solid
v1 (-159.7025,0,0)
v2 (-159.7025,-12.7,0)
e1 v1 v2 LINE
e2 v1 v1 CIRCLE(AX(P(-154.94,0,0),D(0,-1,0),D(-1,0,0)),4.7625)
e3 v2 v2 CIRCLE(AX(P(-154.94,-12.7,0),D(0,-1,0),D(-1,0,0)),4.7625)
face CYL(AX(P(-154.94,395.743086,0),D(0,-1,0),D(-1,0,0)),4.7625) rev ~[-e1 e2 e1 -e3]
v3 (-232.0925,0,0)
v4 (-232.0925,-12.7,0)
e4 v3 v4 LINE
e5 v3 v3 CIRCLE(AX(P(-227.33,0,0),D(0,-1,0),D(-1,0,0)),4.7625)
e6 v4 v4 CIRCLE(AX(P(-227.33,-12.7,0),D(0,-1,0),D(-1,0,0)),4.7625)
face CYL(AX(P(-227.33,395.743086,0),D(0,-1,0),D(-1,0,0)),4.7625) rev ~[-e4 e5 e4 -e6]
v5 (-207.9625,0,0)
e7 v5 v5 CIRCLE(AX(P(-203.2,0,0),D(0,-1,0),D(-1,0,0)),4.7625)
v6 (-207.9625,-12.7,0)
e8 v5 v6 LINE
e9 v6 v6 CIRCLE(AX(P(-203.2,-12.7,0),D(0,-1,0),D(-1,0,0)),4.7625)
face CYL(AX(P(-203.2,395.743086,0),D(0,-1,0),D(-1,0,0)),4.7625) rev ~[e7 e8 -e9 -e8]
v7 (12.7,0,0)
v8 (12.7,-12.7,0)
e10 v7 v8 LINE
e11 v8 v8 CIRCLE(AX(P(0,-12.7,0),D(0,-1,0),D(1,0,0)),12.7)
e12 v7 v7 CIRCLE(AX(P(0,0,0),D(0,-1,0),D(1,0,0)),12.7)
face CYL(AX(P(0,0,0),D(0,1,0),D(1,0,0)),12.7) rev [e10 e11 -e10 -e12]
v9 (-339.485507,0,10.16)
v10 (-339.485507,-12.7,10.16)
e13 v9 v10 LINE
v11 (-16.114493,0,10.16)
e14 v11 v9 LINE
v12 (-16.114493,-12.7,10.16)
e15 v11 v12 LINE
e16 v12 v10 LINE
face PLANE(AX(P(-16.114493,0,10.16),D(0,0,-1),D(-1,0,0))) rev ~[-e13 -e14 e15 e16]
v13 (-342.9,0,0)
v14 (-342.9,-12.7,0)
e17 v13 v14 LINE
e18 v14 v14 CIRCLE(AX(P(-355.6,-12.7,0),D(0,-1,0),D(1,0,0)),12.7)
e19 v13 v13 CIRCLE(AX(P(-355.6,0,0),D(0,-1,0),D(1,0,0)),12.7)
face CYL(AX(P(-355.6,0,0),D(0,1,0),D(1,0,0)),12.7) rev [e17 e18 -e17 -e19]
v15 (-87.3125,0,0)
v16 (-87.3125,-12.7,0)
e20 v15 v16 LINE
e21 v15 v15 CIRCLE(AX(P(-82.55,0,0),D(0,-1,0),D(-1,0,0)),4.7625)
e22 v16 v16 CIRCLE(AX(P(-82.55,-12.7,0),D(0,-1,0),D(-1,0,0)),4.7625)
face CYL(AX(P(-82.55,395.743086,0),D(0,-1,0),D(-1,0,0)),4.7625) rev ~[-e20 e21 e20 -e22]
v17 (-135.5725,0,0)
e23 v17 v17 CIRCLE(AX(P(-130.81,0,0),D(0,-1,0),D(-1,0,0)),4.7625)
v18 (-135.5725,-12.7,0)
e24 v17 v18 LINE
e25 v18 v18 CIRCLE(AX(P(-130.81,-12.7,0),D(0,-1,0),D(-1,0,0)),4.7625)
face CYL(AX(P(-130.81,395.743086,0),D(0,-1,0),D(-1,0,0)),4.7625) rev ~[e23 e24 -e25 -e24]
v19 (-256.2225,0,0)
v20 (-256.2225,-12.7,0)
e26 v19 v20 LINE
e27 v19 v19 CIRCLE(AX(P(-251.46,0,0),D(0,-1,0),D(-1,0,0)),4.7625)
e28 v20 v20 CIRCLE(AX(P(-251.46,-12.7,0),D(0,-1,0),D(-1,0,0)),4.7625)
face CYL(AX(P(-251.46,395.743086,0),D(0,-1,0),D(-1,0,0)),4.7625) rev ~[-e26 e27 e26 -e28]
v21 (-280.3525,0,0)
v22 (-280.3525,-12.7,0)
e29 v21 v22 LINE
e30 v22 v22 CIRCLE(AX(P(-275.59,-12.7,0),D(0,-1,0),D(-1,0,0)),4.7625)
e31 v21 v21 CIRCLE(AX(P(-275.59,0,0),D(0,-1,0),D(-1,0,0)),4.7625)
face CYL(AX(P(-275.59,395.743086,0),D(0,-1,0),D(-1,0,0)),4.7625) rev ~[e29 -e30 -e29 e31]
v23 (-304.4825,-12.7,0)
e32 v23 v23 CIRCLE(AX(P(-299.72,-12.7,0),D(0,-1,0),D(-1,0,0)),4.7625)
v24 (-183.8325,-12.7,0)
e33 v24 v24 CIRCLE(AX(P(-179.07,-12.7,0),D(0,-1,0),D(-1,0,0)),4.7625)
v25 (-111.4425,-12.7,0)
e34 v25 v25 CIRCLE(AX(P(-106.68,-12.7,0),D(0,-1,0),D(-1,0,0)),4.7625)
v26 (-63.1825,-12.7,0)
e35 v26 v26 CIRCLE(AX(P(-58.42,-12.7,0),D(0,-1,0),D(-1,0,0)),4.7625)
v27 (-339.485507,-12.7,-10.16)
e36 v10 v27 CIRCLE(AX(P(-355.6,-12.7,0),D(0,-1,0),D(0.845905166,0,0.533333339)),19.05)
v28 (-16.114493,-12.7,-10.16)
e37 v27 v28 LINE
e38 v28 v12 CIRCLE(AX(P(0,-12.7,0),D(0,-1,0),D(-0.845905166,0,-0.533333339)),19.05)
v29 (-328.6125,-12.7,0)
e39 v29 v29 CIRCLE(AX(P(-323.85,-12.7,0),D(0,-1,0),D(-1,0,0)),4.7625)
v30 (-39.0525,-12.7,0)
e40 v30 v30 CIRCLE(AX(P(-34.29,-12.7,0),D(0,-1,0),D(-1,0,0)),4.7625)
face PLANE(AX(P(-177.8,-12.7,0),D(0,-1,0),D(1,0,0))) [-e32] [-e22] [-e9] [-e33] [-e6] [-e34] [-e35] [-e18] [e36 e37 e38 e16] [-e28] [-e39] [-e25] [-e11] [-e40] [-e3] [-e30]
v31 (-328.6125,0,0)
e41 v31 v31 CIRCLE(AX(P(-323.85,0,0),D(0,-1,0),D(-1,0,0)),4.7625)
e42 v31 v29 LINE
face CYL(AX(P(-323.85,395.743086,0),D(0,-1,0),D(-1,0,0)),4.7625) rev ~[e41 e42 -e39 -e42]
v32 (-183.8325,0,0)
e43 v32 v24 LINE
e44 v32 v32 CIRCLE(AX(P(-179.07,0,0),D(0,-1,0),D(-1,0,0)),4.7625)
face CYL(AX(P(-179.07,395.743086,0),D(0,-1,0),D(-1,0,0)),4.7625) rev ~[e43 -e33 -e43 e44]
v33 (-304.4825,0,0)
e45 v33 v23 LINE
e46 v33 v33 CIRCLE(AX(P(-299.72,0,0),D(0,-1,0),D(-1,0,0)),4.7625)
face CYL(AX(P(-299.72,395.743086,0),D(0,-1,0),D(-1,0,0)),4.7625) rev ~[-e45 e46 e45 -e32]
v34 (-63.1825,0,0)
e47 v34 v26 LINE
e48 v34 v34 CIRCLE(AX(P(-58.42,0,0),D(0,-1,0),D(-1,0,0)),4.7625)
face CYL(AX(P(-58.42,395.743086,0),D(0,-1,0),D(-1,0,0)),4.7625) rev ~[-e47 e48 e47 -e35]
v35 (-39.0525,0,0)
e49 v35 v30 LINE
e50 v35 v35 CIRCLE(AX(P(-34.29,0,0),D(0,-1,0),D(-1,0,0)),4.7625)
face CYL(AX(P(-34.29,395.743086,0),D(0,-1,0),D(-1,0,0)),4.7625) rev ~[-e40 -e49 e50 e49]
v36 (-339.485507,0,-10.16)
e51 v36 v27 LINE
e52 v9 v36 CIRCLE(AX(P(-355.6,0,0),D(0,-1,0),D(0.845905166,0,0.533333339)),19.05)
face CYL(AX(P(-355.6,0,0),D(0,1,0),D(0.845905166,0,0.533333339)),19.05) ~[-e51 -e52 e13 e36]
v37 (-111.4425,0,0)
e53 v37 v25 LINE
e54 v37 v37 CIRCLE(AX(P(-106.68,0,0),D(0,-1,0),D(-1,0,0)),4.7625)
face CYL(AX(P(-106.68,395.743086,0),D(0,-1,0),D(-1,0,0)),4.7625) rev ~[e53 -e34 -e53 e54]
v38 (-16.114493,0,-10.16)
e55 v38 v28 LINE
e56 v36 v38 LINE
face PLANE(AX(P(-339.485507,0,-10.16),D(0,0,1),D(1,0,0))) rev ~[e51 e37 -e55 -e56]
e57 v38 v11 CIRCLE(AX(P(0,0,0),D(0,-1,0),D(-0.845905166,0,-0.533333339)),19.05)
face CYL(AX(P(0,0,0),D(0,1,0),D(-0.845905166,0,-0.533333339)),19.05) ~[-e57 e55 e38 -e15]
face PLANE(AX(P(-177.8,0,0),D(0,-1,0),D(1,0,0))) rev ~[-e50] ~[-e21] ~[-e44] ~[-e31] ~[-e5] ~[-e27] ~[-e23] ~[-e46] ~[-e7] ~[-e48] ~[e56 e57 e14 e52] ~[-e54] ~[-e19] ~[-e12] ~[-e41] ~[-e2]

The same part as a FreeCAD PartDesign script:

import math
import FreeCAD as App
import Part
import Sketcher
from FreeCAD import Vector
Q = App.Units.Quantity

doc = App.newDocument("Part")
body = doc.addObject("PartDesign::Body", "Body")

sketch1 = doc.addObject("Sketcher::SketchObject", "Sketch")
body.addObject(sketch1)
sketch1.AttachmentSupport = (doc.XZ_Plane, [""])
sketch1.MapMode = "FlatFace"
sketch1.addGeometry(Part.LineSegment(Vector(-339.485507, -10.16, 0), Vector(-16.114493, -10.16, 0)), False)
sketch1.addGeometry(Part.ArcOfCircle(Part.Circle(Vector(0, 0, 0), Vector(0, 0, 1), 19.05), math.radians(-147.769047), math.radians(147.769047)), False)
sketch1.addGeometry(Part.LineSegment(Vector(-16.114493, 10.16, 0), Vector(-339.485507, 10.16, 0)), False)
sketch1.addGeometry(Part.ArcOfCircle(Part.Circle(Vector(-355.6, 0, 0), Vector(0, 0, 1), 19.05), math.radians(32.230953), math.radians(327.769047)), False)
sketch1.addGeometry(Part.Circle(Vector(-355.6, 0, 0), Vector(0, 0, 1), 12.7), False)
sketch1.addGeometry(Part.Circle(Vector(0, 0, 0), Vector(0, 0, 1), 12.7), False)
sketch1.addConstraint(Sketcher.Constraint("Coincident", 0, 2, 1, 1))
sketch1.addConstraint(Sketcher.Constraint("Coincident", 1, 2, 2, 1))
sketch1.addConstraint(Sketcher.Constraint("Coincident", 2, 2, 3, 1))
sketch1.addConstraint(Sketcher.Constraint("Coincident", 3, 2, 0, 1))
sketch1.addConstraint(Sketcher.Constraint("Horizontal", 0))
sketch1.addConstraint(Sketcher.Constraint("Horizontal", 2))
sketch1.addConstraint(Sketcher.Constraint("Coincident", 1, 3, -1, 1))
sketch1.addConstraint(Sketcher.Constraint("Coincident", 5, 3, -1, 1))
sketch1.addConstraint(Sketcher.Constraint("Coincident", 4, 3, 3, 3))
sketch1.addConstraint(Sketcher.Constraint("Equal", 1, 3))
sketch1.addConstraint(Sketcher.Constraint("Equal", 4, 5))
sketch1.addConstraint(Sketcher.Constraint("Symmetric", 2, 2, 3, 2, -1))
sketch1.addConstraint(Sketcher.Constraint("Diameter", 4, Q("1 in")))
sketch1.addConstraint(Sketcher.Constraint("Radius", 1, Q("0.75 in")))
sketch1.addConstraint(Sketcher.Constraint("DistanceX", 3, 3, -1, 1, Q("14 in")))
sketch1.addConstraint(Sketcher.Constraint("DistanceY", 0, 2, -1, 1, Q("0.4 in")))
pad1 = doc.addObject("PartDesign::Pad", "Pad")
body.addObject(pad1)
pad1.Profile = sketch1
pad1.Length = Q("0.5 in")

sketch2 = doc.addObject("Sketcher::SketchObject", "Sketch001")
body.addObject(sketch2)
sketch2.AttachmentSupport = (doc.XZ_Plane, [""])
sketch2.MapMode = "FlatFace"
sketch2.addGeometry(Part.Circle(Vector(-323.85, 0, 0), Vector(0, 0, 1), 4.7625), False)
sketch2.addGeometry(Part.Circle(Vector(-299.72, 0, 0), Vector(0, 0, 1), 4.7625), False)
sketch2.addGeometry(Part.Circle(Vector(-275.59, 0, 0), Vector(0, 0, 1), 4.7625), False)
sketch2.addGeometry(Part.Circle(Vector(-251.46, 0, 0), Vector(0, 0, 1), 4.7625), False)
sketch2.addGeometry(Part.Circle(Vector(-227.33, 0, 0), Vector(0, 0, 1), 4.7625), False)
sketch2.addGeometry(Part.Circle(Vector(-203.2, 0, 0), Vector(0, 0, 1), 4.7625), False)
sketch2.addGeometry(Part.Circle(Vector(-179.07, 0, 0), Vector(0, 0, 1), 4.7625), False)
sketch2.addGeometry(Part.Circle(Vector(-154.94, 0, 0), Vector(0, 0, 1), 4.7625), False)
sketch2.addGeometry(Part.Circle(Vector(-130.81, 0, 0), Vector(0, 0, 1), 4.7625), False)
sketch2.addGeometry(Part.Circle(Vector(-106.68, 0, 0), Vector(0, 0, 1), 4.7625), False)
sketch2.addGeometry(Part.Circle(Vector(-82.55, 0, 0), Vector(0, 0, 1), 4.7625), False)
sketch2.addGeometry(Part.Circle(Vector(-58.42, 0, 0), Vector(0, 0, 1), 4.7625), False)
sketch2.addGeometry(Part.Circle(Vector(-34.29, 0, 0), Vector(0, 0, 1), 4.7625), False)
sketch2.addConstraint(Sketcher.Constraint("Equal", 0, 1))
sketch2.addConstraint(Sketcher.Constraint("Equal", 1, 2))
sketch2.addConstraint(Sketcher.Constraint("Equal", 2, 3))
sketch2.addConstraint(Sketcher.Constraint("Equal", 3, 4))
sketch2.addConstraint(Sketcher.Constraint("Equal", 4, 5))
sketch2.addConstraint(Sketcher.Constraint("Equal", 5, 6))
sketch2.addConstraint(Sketcher.Constraint("Equal", 6, 7))
sketch2.addConstraint(Sketcher.Constraint("Equal", 7, 8))
sketch2.addConstraint(Sketcher.Constraint("Equal", 8, 9))
sketch2.addConstraint(Sketcher.Constraint("Equal", 9, 10))
sketch2.addConstraint(Sketcher.Constraint("Equal", 10, 11))
sketch2.addConstraint(Sketcher.Constraint("Equal", 11, 12))
sketch2.addConstraint(Sketcher.Constraint("PointOnObject", 0, 3, -1))
sketch2.addConstraint(Sketcher.Constraint("PointOnObject", 1, 3, -1))
sketch2.addConstraint(Sketcher.Constraint("PointOnObject", 2, 3, -1))
sketch2.addConstraint(Sketcher.Constraint("PointOnObject", 3, 3, -1))
sketch2.addConstraint(Sketcher.Constraint("PointOnObject", 4, 3, -1))
sketch2.addConstraint(Sketcher.Constraint("PointOnObject", 5, 3, -1))
sketch2.addConstraint(Sketcher.Constraint("PointOnObject", 6, 3, -1))
sketch2.addConstraint(Sketcher.Constraint("PointOnObject", 7, 3, -1))
sketch2.addConstraint(Sketcher.Constraint("PointOnObject", 8, 3, -1))
sketch2.addConstraint(Sketcher.Constraint("PointOnObject", 9, 3, -1))
sketch2.addConstraint(Sketcher.Constraint("PointOnObject", 10, 3, -1))
sketch2.addConstraint(Sketcher.Constraint("PointOnObject", 11, 3, -1))
sketch2.addConstraint(Sketcher.Constraint("PointOnObject", 12, 3, -1))
sketch2.addConstraint(Sketcher.Constraint("Diameter", 0, Q("0.375 in")))
sketch2.addConstraint(Sketcher.Constraint("DistanceX", 5, 3, -1, 1, Q("8 in")))
sketch2.addConstraint(Sketcher.Constraint("DistanceX", 1, 3, -1, 1, Q("11.8 in")))
sketch2.addConstraint(Sketcher.Constraint("DistanceX", 3, 3, -1, 1, Q("9.9 in")))
sketch2.addConstraint(Sketcher.Constraint("DistanceX", 7, 3, -1, 1, Q("6.1 in")))
sketch2.addConstraint(Sketcher.Constraint("DistanceX", 9, 3, -1, 1, Q("4.2 in")))
sketch2.addConstraint(Sketcher.Constraint("DistanceX", 11, 3, -1, 1, Q("2.3 in")))
sketch2.addConstraint(Sketcher.Constraint("DistanceX", 0, 3, 2, 3, Q("1.9 in")))
sketch2.addConstraint(Sketcher.Constraint("DistanceX", 2, 3, 4, 3, Q("1.9 in")))
sketch2.addConstraint(Sketcher.Constraint("DistanceX", 4, 3, 6, 3, Q("1.9 in")))
sketch2.addConstraint(Sketcher.Constraint("DistanceX", 6, 3, 8, 3, Q("1.9 in")))
sketch2.addConstraint(Sketcher.Constraint("DistanceX", 8, 3, 10, 3, Q("1.9 in")))
sketch2.addConstraint(Sketcher.Constraint("DistanceX", 10, 3, 12, 3, Q("1.9 in")))
sketch2.addConstraint(Sketcher.Constraint("DistanceX", 0, 3, -1, 1, Q("12.75 in")))
doc.recompute()
hole = doc.addObject("PartDesign::Hole", "Hole")
body.addObject(hole)
hole.Profile = sketch2
hole.ThreadType = "None"
hole.Diameter = Q("0.375 in")
hole.DepthType = "ThroughAll"
hole.Reversed = True

doc.recompute()
